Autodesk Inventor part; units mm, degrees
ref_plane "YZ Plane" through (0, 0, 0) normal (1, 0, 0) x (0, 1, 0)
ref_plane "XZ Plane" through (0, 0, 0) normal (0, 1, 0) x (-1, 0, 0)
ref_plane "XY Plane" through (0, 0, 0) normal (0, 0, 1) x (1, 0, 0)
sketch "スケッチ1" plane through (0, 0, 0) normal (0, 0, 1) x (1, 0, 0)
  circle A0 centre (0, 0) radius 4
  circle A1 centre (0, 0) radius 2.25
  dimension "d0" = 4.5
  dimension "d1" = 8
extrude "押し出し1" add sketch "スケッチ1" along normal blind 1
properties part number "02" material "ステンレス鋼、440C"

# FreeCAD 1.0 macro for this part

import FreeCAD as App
import Part
import Sketcher

V = App.Vector

doc = App.newDocument("Part")
body = doc.addObject("PartDesign::Body", "Body")

# Sketch on XY plane
sketch1 = body.newObject("Sketcher::SketchObject", "Sketch")
sketch1.AttachmentSupport = (doc.getObject("XY_Plane"), [""])
sketch1.MapMode = "FlatFace"
sketch1.addGeometry([
    Part.Circle(V(0, 0, 0), V(0, 0, 1), 4),
    Part.Circle(V(0, 0, 0), V(0, 0, 1), 2.25),
], False)
sketch1.addConstraint([
    Sketcher.Constraint("Coincident", 0, 3, -1, 1),
    Sketcher.Constraint("Coincident", 1, 3, -1, 1),
    Sketcher.Constraint("Diameter", 0, 8.0),
    Sketcher.Constraint("Diameter", 1, 4.5),
])
pad1 = body.newObject("PartDesign::Pad", "Pad")
pad1.Profile = sketch1
pad1.Length = 1

doc.recompute()
